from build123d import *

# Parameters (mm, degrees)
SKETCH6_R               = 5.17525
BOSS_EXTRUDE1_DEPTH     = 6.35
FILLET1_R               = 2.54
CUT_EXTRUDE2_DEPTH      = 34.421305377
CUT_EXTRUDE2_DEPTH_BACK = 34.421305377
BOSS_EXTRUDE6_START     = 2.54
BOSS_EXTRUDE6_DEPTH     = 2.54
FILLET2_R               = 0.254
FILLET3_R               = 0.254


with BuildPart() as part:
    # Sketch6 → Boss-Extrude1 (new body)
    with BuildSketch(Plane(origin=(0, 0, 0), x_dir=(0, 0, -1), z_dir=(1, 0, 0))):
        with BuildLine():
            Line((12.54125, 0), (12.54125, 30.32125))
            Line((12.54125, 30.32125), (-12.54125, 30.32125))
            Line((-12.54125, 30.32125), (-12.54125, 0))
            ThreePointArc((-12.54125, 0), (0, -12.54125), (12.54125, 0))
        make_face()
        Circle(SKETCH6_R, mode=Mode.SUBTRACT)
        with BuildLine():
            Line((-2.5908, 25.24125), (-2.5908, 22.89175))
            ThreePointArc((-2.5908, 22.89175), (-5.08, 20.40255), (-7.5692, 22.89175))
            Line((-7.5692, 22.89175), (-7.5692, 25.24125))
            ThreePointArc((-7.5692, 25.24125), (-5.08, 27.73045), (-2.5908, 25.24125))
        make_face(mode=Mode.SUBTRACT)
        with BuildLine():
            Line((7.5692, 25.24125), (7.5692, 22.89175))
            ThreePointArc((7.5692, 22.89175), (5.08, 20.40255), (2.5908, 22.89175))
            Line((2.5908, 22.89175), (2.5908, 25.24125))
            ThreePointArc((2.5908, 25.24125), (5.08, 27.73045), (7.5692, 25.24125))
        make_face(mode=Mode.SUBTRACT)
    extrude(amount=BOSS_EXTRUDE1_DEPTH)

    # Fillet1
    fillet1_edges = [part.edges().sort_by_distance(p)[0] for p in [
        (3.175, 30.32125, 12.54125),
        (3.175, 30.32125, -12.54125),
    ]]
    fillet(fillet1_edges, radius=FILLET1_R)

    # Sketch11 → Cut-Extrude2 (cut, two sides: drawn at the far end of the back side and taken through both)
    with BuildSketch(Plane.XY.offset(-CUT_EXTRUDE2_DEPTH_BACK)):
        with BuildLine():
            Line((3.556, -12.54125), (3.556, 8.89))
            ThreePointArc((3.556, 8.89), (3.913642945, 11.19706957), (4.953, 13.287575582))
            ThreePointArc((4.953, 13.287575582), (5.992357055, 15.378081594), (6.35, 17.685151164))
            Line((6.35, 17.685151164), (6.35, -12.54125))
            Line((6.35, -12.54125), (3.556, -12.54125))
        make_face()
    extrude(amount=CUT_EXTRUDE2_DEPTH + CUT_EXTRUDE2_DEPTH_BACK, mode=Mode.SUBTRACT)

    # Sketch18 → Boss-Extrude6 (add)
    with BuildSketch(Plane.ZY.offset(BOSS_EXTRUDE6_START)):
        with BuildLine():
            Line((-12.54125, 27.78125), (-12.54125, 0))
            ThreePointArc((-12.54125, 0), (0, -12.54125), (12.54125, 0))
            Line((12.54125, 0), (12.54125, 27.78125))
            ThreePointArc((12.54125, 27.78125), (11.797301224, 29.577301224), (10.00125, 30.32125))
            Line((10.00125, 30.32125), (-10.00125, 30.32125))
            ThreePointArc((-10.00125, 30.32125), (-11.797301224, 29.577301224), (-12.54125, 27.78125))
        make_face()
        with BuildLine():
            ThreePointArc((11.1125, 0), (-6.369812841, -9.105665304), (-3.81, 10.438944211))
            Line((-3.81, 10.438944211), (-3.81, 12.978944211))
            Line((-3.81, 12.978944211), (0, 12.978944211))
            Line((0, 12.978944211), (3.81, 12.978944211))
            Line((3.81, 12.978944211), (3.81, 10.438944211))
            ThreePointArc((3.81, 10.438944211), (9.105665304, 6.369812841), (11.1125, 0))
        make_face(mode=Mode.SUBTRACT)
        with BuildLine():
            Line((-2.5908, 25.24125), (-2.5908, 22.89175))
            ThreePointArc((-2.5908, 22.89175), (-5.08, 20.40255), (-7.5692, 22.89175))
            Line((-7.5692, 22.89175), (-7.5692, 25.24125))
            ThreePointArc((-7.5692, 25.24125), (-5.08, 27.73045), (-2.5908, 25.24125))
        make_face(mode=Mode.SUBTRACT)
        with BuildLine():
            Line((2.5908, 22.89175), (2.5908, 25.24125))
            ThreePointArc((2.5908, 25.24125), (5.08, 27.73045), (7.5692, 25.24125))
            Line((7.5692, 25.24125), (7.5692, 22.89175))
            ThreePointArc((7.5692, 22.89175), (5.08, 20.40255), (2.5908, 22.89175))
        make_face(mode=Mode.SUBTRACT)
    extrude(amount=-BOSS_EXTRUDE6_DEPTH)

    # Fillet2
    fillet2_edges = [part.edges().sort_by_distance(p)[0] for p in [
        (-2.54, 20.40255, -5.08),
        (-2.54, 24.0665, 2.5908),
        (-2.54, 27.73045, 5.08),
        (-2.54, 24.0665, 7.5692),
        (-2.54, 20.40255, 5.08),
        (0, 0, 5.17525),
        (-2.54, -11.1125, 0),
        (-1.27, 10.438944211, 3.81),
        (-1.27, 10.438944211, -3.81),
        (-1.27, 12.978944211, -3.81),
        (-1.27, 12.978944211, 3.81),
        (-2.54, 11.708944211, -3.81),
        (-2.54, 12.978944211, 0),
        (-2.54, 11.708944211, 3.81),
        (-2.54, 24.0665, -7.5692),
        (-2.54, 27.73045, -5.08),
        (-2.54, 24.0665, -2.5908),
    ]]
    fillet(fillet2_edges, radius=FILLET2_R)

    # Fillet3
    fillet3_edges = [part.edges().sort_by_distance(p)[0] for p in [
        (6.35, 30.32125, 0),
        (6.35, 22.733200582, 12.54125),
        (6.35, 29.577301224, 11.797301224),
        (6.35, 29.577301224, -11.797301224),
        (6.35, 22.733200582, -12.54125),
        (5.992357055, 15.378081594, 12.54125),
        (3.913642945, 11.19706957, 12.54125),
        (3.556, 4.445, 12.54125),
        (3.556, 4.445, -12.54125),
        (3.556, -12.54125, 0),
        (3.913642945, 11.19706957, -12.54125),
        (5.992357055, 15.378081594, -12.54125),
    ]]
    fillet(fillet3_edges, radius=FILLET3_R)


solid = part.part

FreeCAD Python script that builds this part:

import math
import FreeCAD as App
import Part
import Sketcher
from FreeCAD import Vector
Q = App.Units.Quantity


def edges_at(feature, points):
    """Names of the edges that pass closest to the given points."""
    edges = feature.Shape.Edges
    near = lambda p: min(range(len(edges)), key=lambda i: edges[i].distToShape(Part.Vertex(*p))[0])
    return sorted({f"Edge{near(p) + 1}" for p in points})

doc = App.newDocument("Part")
body = doc.addObject("PartDesign::Body", "Body")

sketch1 = body.newObject("Sketcher::SketchObject", "Sketch")
sketch1.AttachmentSupport = (doc.getObject("YZ_Plane"), [""])
sketch1.MapMode = "FlatFace"
sketch1.addGeometry([
    Part.LineSegment(Vector(0, -12.5, 0), Vector(30.3, -12.5, 0)),
    Part.LineSegment(Vector(30.3, -12.5, 0), Vector(30.3, 12.5, 0)),
    Part.LineSegment(Vector(30.3, 12.5, 0), Vector(0, 12.5, 0)),
    Part.ArcOfCircle(Part.Circle(Vector(0, 0, 0), Vector(0, 0, 1), 12.5), math.radians(90), math.radians(270)),
    Part.Circle(Vector(0, 0, 0), Vector(0, 0, 1), 5.2),
    Part.ArcOfCircle(Part.Circle(Vector(25.2, 5.1, 0), Vector(0, 0, 1), 2.5), math.radians(-90), math.radians(90)),
    Part.LineSegment(Vector(25.2, 2.6, 0), Vector(22.9, 2.6, 0)),
    Part.ArcOfCircle(Part.Circle(Vector(22.9, 5.1, 0), Vector(0, 0, 1), 2.5), math.radians(90), math.radians(270)),
    Part.LineSegment(Vector(22.9, 7.6, 0), Vector(25.2, 7.6, 0)),
    Part.ArcOfCircle(Part.Circle(Vector(25.2, -5.1, 0), Vector(0, 0, 1), 2.5), math.radians(-90), math.radians(90)),
    Part.LineSegment(Vector(25.2, -7.6, 0), Vector(22.9, -7.6, 0)),
    Part.ArcOfCircle(Part.Circle(Vector(22.9, -5.1, 0), Vector(0, 0, 1), 2.5), math.radians(90), math.radians(270)),
    Part.LineSegment(Vector(22.9, -2.6, 0), Vector(25.2, -2.6, 0)),
], False)
sketch1.addConstraint([
    Sketcher.Constraint("Coincident", 0, 2, 1, 1),
    Sketcher.Constraint("Coincident", 1, 2, 2, 1),
    Sketcher.Constraint("Tangent", 2, 2, 3, 1),
    Sketcher.Constraint("Tangent", 3, 2, 0, 1),
    Sketcher.Constraint("Tangent", 5, 1, 6, 1),
    Sketcher.Constraint("Tangent", 6, 2, 7, 2),
    Sketcher.Constraint("Tangent", 7, 1, 8, 1),
    Sketcher.Constraint("Tangent", 8, 2, 5, 2),
    Sketcher.Constraint("Tangent", 9, 1, 10, 1),
    Sketcher.Constraint("Tangent", 10, 2, 11, 2),
    Sketcher.Constraint("Tangent", 11, 1, 12, 1),
    Sketcher.Constraint("Tangent", 12, 2, 9, 2),
    Sketcher.Constraint("Horizontal", 0),
    Sketcher.Constraint("Vertical", 1),
    Sketcher.Constraint("Horizontal", 2),
    Sketcher.Constraint("Horizontal", 6),
    Sketcher.Constraint("Horizontal", 8),
    Sketcher.Constraint("Horizontal", 10),
    Sketcher.Constraint("Horizontal", 12),
    Sketcher.Constraint("Coincident", 3, 3, -1, 1),
    Sketcher.Constraint("Coincident", 4, 3, -1, 1),
    Sketcher.Constraint("Equal", 7, 9),
    Sketcher.Constraint("Symmetric", 5, 3, 9, 3, -1),
    Sketcher.Constraint("Vertical", 7, 3, 11, 3),
    Sketcher.Constraint("Radius", 5, Q("0.098 in")),
    Sketcher.Constraint("Diameter", 4, Q("0.4075 in")),
    Sketcher.Constraint("DistanceY", -1, 1, 5, 3, Q("0.2 in")),
    Sketcher.Constraint("DistanceX", 9, 3, 0, 2, Q("0.2 in")),
    Sketcher.Constraint("DistanceX", 6, 2, 6, 1, Q("0.0925 in")),
    Sketcher.Constraint("DistanceY", 1, 1, 1, 2, Q("0.9875 in")),
    Sketcher.Constraint("DistanceX", 0, 1, 0, 2, Q("30.32125 mm")),
])
pad1 = body.newObject("PartDesign::Pad", "Pad")
pad1.Profile = sketch1
pad1.Length = Q("0.25 in")
doc.recompute()

fillet = body.newObject("PartDesign::Fillet", "Fillet")
fillet.Base = (pad1, edges_at(pad1, [(3.175, 30.321, 12.541), (3.175, 30.321, -12.541)]))
fillet.Radius = Q("0.1 in")

sketch2 = body.newObject("Sketcher::SketchObject", "Sketch001")
sketch2.AttachmentSupport = (doc.getObject("XY_Plane"), [""])
sketch2.MapMode = "FlatFace"
sketch2.addGeometry([
    Part.LineSegment(Vector(3.6, 8.9, 0), Vector(3.6, -12.5, 0)),
    Part.LineSegment(Vector(3.6, -12.5, 0), Vector(6.3, -12.5, 0)),
    Part.LineSegment(Vector(6.3, -12.5, 0), Vector(6.3, 17.7, 0)),
    Part.ArcOfCircle(Part.Circle(Vector(-1.3, 17.7, 0), Vector(0, 0, 1), 7.6), math.radians(-35), math.radians(0)),
    Part.ArcOfCircle(Part.Circle(Vector(11.2, 8.9, 0), Vector(0, 0, 1), 7.6), math.radians(145), math.radians(180)),
], False)
sketch2.addConstraint([
    Sketcher.Constraint("Coincident", 0, 2, 1, 1),
    Sketcher.Constraint("Coincident", 1, 2, 2, 1),
    Sketcher.Constraint("Tangent", 2, 2, 3, 2),
    Sketcher.Constraint("Tangent", 3, 1, 4, 1),
    Sketcher.Constraint("Tangent", 4, 2, 0, 1),
    Sketcher.Constraint("Vertical", 0),
    Sketcher.Constraint("Horizontal", 1),
    Sketcher.Constraint("Vertical", 2),
    Sketcher.Constraint("Equal", 3, 4),
    Sketcher.Constraint("Radius", 3, Q("0.3 in")),
    Sketcher.Constraint("DistanceX", 1, 1, 1, 2, Q("0.11 in")),
    Sketcher.Constraint("DistanceY", 0, 2, 0, 1, Q("0.84375 in")),
    Sketcher.Constraint("DistanceX", 3, 3, -1, 1, Q("0.05 in")),
    Sketcher.Constraint("DistanceY", -1, 1, 4, 3, Q("0.35 in")),
])
pocket1 = body.newObject("PartDesign::Pocket", "Pocket")
pocket1.Profile = sketch2
pocket1.Type = "ThroughAll"
pocket1.Midplane = True

sketch3 = body.newObject("Sketcher::SketchObject", "Sketch002")
sketch3.AttachmentSupport = (doc.getObject("YZ_Plane"), [""])
sketch3.MapMode = "FlatFace"
sketch3.AttachmentOffset = App.Placement(Vector(0, 0, -0.1 * 25.4), App.Rotation())
sketch3.addGeometry([
    Part.LineSegment(Vector(27.8, -12.5, 0), Vector(0, -12.5, 0)),
    Part.ArcOfCircle(Part.Circle(Vector(0, 0, 0), Vector(0, 0, 1), 12.5), math.radians(90), math.radians(270)),
    Part.LineSegment(Vector(0, 12.5, 0), Vector(27.8, 12.5, 0)),
    Part.ArcOfCircle(Part.Circle(Vector(27.8, 10, 0), Vector(0, 0, 1), 2.5), math.radians(0), math.radians(90)),
    Part.LineSegment(Vector(30.3, 10, 0), Vector(30.3, -10, 0)),
    Part.ArcOfCircle(Part.Circle(Vector(27.8, -10, 0), Vector(0, 0, 1), 2.5), math.radians(-90), math.radians(0)),
    Part.ArcOfCircle(Part.Circle(Vector(0, 0, 0), Vector(0, 0, 1), 11.1), math.radians(20), math.radians(90)),
    Part.ArcOfCircle(Part.Circle(Vector(0, 0, 0), Vector(0, 0, 1), 11.1), math.radians(90), math.radians(340)),
    Part.LineSegment(Vector(10.4, -3.8, 0), Vector(13, -3.8, 0)),
    Part.LineSegment(Vector(13, -3.8, 0), Vector(13, 3.8, 0)),
    Part.LineSegment(Vector(13, 3.8, 0), Vector(10.4, 3.8, 0)),
    Part.ArcOfCircle(Part.Circle(Vector(25.2, -5.1, 0), Vector(0, 0, 1), 2.5), math.radians(-90), math.radians(90)),
    Part.LineSegment(Vector(25.2, -2.6, 0), Vector(22.9, -2.6, 0)),
    Part.ArcOfCircle(Part.Circle(Vector(22.9, -5.1, 0), Vector(0, 0, 1), 2.5), math.radians(90), math.radians(270)),
    Part.LineSegment(Vector(22.9, -7.6, 0), Vector(25.2, -7.6, 0)),
    Part.ArcOfCircle(Part.Circle(Vector(22.9, 5.1, 0), Vector(0, 0, 1), 2.5), math.radians(90), math.radians(270)),
    Part.LineSegment(Vector(22.9, 2.6, 0), Vector(25.2, 2.6, 0)),
    Part.ArcOfCircle(Part.Circle(Vector(25.2, 5.1, 0), Vector(0, 0, 1), 2.5), math.radians(-90), math.radians(90)),
    Part.LineSegment(Vector(25.2, 7.6, 0), Vector(22.9, 7.6, 0)),
], False)
sketch3.addConstraint([
    Sketcher.Constraint("Tangent", 0, 2, 1, 2),
    Sketcher.Constraint("Tangent", 1, 1, 2, 1),
    Sketcher.Constraint("Tangent", 2, 2, 3, 2),
    Sketcher.Constraint("Tangent", 3, 1, 4, 1),
    Sketcher.Constraint("Tangent", 4, 2, 5, 2),
    Sketcher.Constraint("Tangent", 5, 1, 0, 1),
    Sketcher.Constraint("Tangent", 6, 2, 7, 1),
    Sketcher.Constraint("Coincident", 7, 2, 8, 1),
    Sketcher.Constraint("Coincident", 8, 2, 9, 1),
    Sketcher.Constraint("Coincident", 9, 2, 10, 1),
    Sketcher.Constraint("Coincident", 10, 2, 6, 1),
    Sketcher.Constraint("Tangent", 11, 2, 12, 1),
    Sketcher.Constraint("Tangent", 12, 2, 13, 1),
    Sketcher.Constraint("Tangent", 13, 2, 14, 1),
    Sketcher.Constraint("Tangent", 14, 2, 11, 1),
    Sketcher.Constraint("Tangent", 15, 2, 16, 1),
    Sketcher.Constraint("Tangent", 16, 2, 17, 1),
    Sketcher.Constraint("Tangent", 17, 2, 18, 1),
    Sketcher.Constraint("Tangent", 18, 2, 15, 1),
    Sketcher.Constraint("Horizontal", 0),
    Sketcher.Constraint("Horizontal", 2),
    Sketcher.Constraint("Vertical", 4),
    Sketcher.Constraint("Horizontal", 8),
    Sketcher.Constraint("Vertical", 9),
    Sketcher.Constraint("Horizontal", 10),
    Sketcher.Constraint("Horizontal", 12),
    Sketcher.Constraint("Horizontal", 14),
    Sketcher.Constraint("Horizontal", 16),
    Sketcher.Constraint("Horizontal", 18),
    Sketcher.Constraint("Coincident", 1, 3, -1, 1),
    Sketcher.Constraint("Coincident", 6, 3, -1, 1),
    Sketcher.Constraint("Equal", 3, 5),
    Sketcher.Constraint("Equal", 6, 7),
    Sketcher.Constraint("Equal", 13, 15),
    Sketcher.Constraint("Symmetric", 13, 3, 15, 3, -1),
    Sketcher.Constraint("PointOnObject", 6, 2, -2),
    Sketcher.Constraint("Vertical", 11, 3, 17, 3),
    Sketcher.Constraint("Vertical", 7, 2, 10, 2),
    Sketcher.Constraint("Radius", 3, Q("0.1 in")),
    Sketcher.Constraint("DistanceX", 8, 1, 8, 2, Q("0.1 in")),
    Sketcher.Constraint("DistanceY", 9, 1, 9, 2, Q("0.3 in")),
    Sketcher.Constraint("Radius", 6, Q("0.4375 in")),
    Sketcher.Constraint("Radius", 11, Q("0.098 in")),
    Sketcher.Constraint("DistanceY", 11, 3, -1, 1, Q("0.2 in")),
    Sketcher.Constraint("DistanceX", 11, 3, 5, 3, Q("0.1 in")),
    Sketcher.Constraint("DistanceX", 0, 2, 0, 1, Q("1.09375 in")),
    Sketcher.Constraint("DistanceX", 12, 2, 12, 1, Q("0.0925 in")),
    Sketcher.Constraint("DistanceY", 4, 2, 4, 1, Q("0.7875 in")),
])
pad2 = body.newObject("PartDesign::Pad", "Pad001")
pad2.Profile = sketch3
pad2.Length = Q("0.1 in")
doc.recompute()

fillet2 = body.newObject("PartDesign::Fillet", "Fillet001")
fillet2.Base = (pad2, edges_at(pad2, [
    (-2.54, 20.403, -5.08),
    (-2.54, 24.067, 2.591),
    (-2.54, 27.73, 5.08),
    (-2.54, 24.067, 7.569),
    (-2.54, 20.403, 5.08),
    (0, 0, 5.175),
    (-2.54, -9.106, -6.37),
    (-1.27, 10.439, 3.81),
    (-1.27, 10.439, -3.81),
    (-1.27, 12.979, -3.81),
    (-1.27, 12.979, 3.81),
    (-2.54, 11.709, -3.81),
    (-2.54, 12.979, 0),
    (-2.54, 11.709, 3.81),
    (-2.54, 24.067, -7.569),
    (-2.54, 27.73, -5.08),
    (-2.54, 24.067, -2.591),
]))
fillet2.Radius = Q("0.01 in")
doc.recompute()

fillet3 = body.newObject("PartDesign::Fillet", "Fillet002")
fillet3.Base = (fillet2, edges_at(fillet2, [
    (6.35, 30.321, 0),
    (6.35, 22.733, 12.541),
    (6.35, 29.577, 11.797),
    (6.35, 29.577, -11.797),
    (6.35, 22.733, -12.541),
    (5.992, 15.378, 12.541),
    (3.914, 11.197, 12.541),
    (3.556, 4.445, 12.541),
    (3.556, 4.445, -12.541),
    (3.556, -12.541, 0),
    (3.914, 11.197, -12.541),
    (5.992, 15.378, -12.541),
]))
fillet3.Radius = Q("0.01 in")

doc.recompute()
